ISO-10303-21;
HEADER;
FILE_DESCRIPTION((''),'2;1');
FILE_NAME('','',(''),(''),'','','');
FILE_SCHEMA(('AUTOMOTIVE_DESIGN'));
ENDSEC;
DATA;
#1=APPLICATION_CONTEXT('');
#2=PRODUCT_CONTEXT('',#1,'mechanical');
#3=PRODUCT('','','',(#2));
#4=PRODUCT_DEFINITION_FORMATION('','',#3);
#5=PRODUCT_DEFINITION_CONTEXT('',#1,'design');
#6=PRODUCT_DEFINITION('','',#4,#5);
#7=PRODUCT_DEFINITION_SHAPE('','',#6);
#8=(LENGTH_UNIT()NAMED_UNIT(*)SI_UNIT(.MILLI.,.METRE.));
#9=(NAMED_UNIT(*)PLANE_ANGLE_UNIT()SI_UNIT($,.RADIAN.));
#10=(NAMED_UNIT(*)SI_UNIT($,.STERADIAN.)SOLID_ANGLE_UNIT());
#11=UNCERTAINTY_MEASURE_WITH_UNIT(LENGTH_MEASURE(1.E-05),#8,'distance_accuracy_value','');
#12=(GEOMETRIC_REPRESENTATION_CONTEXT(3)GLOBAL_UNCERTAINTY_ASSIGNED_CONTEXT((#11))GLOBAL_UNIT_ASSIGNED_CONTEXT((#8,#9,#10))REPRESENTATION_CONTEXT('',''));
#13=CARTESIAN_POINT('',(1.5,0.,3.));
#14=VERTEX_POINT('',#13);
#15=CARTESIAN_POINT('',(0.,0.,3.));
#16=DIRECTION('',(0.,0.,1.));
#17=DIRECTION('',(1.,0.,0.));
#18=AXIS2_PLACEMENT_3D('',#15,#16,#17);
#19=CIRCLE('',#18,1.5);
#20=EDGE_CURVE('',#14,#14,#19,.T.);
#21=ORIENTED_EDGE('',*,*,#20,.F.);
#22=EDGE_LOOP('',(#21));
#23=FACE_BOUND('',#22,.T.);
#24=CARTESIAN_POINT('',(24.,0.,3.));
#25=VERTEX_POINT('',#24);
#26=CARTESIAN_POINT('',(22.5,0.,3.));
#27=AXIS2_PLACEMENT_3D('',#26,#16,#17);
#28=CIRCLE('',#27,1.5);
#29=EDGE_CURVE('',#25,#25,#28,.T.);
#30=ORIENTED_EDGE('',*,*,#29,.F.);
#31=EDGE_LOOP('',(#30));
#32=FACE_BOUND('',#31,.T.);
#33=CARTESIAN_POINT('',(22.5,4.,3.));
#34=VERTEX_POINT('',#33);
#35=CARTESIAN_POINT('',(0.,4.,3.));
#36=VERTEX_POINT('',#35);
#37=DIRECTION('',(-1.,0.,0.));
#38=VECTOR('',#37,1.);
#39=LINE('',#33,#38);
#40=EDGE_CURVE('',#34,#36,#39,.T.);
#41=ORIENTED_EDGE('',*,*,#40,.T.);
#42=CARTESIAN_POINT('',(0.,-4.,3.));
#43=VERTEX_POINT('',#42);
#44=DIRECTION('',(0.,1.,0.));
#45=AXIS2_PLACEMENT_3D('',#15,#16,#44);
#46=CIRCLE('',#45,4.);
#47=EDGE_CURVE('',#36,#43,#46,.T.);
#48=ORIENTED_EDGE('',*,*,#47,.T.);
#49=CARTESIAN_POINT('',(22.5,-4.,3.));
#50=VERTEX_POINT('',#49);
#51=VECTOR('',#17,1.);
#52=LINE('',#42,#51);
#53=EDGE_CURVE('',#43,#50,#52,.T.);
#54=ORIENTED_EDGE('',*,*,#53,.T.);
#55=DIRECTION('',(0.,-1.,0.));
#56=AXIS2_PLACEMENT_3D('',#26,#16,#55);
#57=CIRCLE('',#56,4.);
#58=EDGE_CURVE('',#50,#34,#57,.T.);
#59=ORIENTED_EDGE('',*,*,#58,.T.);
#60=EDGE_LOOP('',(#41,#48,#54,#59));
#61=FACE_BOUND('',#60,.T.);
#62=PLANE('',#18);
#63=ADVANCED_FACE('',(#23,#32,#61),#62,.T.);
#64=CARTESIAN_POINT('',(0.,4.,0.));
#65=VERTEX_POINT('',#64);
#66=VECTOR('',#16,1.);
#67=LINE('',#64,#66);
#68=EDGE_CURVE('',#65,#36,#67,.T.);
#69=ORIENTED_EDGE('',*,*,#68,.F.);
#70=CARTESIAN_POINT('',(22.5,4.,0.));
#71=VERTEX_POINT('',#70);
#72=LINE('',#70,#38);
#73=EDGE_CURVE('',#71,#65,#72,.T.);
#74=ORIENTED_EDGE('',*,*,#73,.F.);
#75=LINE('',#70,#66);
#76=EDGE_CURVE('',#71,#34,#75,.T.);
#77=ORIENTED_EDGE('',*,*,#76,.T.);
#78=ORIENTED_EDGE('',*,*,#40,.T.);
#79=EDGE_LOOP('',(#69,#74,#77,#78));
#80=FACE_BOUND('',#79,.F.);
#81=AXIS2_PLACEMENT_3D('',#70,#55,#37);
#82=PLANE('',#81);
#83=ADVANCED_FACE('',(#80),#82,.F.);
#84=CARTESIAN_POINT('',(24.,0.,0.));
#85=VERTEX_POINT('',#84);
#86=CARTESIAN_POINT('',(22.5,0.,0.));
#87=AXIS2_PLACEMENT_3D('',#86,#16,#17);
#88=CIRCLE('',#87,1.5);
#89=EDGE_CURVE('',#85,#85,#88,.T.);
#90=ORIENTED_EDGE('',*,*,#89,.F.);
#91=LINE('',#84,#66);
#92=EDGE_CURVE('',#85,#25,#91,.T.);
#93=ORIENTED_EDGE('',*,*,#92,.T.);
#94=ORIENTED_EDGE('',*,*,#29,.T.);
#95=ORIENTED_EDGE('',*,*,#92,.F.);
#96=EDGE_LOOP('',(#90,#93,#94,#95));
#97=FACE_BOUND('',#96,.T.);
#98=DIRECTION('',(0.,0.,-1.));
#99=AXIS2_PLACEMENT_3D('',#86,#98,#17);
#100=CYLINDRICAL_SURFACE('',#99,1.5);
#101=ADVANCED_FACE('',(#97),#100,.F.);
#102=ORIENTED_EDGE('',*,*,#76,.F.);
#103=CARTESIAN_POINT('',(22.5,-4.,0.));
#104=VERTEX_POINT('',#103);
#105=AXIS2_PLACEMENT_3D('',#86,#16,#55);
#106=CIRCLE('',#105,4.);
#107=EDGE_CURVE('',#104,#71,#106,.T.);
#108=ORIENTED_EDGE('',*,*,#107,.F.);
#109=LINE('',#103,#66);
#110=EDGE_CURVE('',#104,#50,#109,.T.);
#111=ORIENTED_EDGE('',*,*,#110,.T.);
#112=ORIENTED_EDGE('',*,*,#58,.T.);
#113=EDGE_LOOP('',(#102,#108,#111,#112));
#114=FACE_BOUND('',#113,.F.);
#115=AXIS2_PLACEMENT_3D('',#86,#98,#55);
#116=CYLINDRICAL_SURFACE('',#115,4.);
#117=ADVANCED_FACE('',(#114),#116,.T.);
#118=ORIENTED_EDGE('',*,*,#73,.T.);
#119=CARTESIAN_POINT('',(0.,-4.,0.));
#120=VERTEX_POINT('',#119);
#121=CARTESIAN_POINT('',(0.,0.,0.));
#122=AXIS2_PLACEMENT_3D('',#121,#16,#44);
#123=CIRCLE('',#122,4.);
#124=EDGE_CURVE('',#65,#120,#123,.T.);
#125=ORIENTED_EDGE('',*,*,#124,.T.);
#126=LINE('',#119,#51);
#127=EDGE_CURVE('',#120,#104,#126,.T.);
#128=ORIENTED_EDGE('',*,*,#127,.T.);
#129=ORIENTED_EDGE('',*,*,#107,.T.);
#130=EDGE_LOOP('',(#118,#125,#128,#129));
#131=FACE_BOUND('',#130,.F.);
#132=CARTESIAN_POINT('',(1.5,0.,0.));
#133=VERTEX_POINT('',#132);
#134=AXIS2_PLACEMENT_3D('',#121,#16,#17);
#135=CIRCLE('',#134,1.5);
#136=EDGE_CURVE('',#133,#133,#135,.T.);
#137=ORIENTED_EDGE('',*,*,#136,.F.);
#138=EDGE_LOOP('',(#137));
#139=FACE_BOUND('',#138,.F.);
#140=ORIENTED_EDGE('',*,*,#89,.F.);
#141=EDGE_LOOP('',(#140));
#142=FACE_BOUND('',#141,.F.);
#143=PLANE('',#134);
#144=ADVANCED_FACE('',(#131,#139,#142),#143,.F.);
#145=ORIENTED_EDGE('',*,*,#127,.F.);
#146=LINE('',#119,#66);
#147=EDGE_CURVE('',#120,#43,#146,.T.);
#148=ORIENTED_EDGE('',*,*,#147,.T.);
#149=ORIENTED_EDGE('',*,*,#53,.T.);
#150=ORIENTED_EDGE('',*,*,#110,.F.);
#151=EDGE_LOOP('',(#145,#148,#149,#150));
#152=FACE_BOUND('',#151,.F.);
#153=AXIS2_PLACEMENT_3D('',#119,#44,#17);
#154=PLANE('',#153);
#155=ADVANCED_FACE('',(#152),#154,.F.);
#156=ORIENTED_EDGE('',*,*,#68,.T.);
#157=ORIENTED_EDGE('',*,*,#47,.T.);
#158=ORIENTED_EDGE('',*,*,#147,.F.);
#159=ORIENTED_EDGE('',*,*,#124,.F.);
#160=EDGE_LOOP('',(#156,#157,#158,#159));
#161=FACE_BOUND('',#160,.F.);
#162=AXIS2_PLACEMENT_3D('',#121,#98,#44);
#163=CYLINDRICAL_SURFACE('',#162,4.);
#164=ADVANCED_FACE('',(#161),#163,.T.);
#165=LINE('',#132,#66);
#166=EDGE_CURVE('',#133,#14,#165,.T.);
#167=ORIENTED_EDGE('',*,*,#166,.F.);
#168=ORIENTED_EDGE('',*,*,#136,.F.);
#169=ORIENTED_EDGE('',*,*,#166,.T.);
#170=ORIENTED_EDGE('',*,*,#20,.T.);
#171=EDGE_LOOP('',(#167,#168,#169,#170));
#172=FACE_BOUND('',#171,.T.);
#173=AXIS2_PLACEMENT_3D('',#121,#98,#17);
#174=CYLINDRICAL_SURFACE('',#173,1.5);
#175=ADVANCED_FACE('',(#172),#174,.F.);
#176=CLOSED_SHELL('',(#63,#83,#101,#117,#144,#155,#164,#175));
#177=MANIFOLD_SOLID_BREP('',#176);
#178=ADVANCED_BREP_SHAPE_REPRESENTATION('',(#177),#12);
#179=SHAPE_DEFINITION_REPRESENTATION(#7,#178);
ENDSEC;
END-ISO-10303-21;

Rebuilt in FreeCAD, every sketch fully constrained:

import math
import FreeCAD as App
import Part
import Sketcher
from FreeCAD import Vector

doc = App.newDocument("Part")
body = doc.addObject("PartDesign::Body", "Body")

sketch1 = doc.addObject("Sketcher::SketchObject", "Sketch")
body.addObject(sketch1)
sketch1.AttachmentSupport = (doc.XY_Plane, [""])
sketch1.MapMode = "FlatFace"
sketch1.addGeometry(Part.ArcOfCircle(Part.Circle(Vector(0, 0, 0), Vector(0, 0, 1), 4), math.radians(90), math.radians(270)), False)
sketch1.addGeometry(Part.LineSegment(Vector(0, -4, 0), Vector(22.5, -4, 0)), False)
sketch1.addGeometry(Part.ArcOfCircle(Part.Circle(Vector(22.5, 0, 0), Vector(0, 0, 1), 4), math.radians(-90), math.radians(90)), False)
sketch1.addGeometry(Part.LineSegment(Vector(22.5, 4, 0), Vector(0, 4, 0)), False)
sketch1.addGeometry(Part.Circle(Vector(0, 0, 0), Vector(0, 0, 1), 1.5), False)
sketch1.addGeometry(Part.Circle(Vector(22.5, 0, 0), Vector(0, 0, 1), 1.5), False)
sketch1.addConstraint(Sketcher.Constraint("Tangent", 0, 2, 1, 1))
sketch1.addConstraint(Sketcher.Constraint("Tangent", 1, 2, 2, 1))
sketch1.addConstraint(Sketcher.Constraint("Tangent", 2, 2, 3, 1))
sketch1.addConstraint(Sketcher.Constraint("Tangent", 3, 2, 0, 1))
sketch1.addConstraint(Sketcher.Constraint("Horizontal", 1))
sketch1.addConstraint(Sketcher.Constraint("Horizontal", 3))
sketch1.addConstraint(Sketcher.Constraint("Coincident", 0, 3, -1, 1))
sketch1.addConstraint(Sketcher.Constraint("Coincident", 4, 3, -1, 1))
sketch1.addConstraint(Sketcher.Constraint("Coincident", 5, 3, 2, 3))
sketch1.addConstraint(Sketcher.Constraint("Equal", 4, 5))
sketch1.addConstraint(Sketcher.Constraint("Diameter", 4, 3.0))
sketch1.addConstraint(Sketcher.Constraint("Radius", 0, 4.0))
sketch1.addConstraint(Sketcher.Constraint("DistanceX", 1, 1, 1, 2, 22.5))
pad1 = doc.addObject("PartDesign::Pad", "Pad")
body.addObject(pad1)
pad1.Profile = sketch1
pad1.Length = 3

doc.recompute()
